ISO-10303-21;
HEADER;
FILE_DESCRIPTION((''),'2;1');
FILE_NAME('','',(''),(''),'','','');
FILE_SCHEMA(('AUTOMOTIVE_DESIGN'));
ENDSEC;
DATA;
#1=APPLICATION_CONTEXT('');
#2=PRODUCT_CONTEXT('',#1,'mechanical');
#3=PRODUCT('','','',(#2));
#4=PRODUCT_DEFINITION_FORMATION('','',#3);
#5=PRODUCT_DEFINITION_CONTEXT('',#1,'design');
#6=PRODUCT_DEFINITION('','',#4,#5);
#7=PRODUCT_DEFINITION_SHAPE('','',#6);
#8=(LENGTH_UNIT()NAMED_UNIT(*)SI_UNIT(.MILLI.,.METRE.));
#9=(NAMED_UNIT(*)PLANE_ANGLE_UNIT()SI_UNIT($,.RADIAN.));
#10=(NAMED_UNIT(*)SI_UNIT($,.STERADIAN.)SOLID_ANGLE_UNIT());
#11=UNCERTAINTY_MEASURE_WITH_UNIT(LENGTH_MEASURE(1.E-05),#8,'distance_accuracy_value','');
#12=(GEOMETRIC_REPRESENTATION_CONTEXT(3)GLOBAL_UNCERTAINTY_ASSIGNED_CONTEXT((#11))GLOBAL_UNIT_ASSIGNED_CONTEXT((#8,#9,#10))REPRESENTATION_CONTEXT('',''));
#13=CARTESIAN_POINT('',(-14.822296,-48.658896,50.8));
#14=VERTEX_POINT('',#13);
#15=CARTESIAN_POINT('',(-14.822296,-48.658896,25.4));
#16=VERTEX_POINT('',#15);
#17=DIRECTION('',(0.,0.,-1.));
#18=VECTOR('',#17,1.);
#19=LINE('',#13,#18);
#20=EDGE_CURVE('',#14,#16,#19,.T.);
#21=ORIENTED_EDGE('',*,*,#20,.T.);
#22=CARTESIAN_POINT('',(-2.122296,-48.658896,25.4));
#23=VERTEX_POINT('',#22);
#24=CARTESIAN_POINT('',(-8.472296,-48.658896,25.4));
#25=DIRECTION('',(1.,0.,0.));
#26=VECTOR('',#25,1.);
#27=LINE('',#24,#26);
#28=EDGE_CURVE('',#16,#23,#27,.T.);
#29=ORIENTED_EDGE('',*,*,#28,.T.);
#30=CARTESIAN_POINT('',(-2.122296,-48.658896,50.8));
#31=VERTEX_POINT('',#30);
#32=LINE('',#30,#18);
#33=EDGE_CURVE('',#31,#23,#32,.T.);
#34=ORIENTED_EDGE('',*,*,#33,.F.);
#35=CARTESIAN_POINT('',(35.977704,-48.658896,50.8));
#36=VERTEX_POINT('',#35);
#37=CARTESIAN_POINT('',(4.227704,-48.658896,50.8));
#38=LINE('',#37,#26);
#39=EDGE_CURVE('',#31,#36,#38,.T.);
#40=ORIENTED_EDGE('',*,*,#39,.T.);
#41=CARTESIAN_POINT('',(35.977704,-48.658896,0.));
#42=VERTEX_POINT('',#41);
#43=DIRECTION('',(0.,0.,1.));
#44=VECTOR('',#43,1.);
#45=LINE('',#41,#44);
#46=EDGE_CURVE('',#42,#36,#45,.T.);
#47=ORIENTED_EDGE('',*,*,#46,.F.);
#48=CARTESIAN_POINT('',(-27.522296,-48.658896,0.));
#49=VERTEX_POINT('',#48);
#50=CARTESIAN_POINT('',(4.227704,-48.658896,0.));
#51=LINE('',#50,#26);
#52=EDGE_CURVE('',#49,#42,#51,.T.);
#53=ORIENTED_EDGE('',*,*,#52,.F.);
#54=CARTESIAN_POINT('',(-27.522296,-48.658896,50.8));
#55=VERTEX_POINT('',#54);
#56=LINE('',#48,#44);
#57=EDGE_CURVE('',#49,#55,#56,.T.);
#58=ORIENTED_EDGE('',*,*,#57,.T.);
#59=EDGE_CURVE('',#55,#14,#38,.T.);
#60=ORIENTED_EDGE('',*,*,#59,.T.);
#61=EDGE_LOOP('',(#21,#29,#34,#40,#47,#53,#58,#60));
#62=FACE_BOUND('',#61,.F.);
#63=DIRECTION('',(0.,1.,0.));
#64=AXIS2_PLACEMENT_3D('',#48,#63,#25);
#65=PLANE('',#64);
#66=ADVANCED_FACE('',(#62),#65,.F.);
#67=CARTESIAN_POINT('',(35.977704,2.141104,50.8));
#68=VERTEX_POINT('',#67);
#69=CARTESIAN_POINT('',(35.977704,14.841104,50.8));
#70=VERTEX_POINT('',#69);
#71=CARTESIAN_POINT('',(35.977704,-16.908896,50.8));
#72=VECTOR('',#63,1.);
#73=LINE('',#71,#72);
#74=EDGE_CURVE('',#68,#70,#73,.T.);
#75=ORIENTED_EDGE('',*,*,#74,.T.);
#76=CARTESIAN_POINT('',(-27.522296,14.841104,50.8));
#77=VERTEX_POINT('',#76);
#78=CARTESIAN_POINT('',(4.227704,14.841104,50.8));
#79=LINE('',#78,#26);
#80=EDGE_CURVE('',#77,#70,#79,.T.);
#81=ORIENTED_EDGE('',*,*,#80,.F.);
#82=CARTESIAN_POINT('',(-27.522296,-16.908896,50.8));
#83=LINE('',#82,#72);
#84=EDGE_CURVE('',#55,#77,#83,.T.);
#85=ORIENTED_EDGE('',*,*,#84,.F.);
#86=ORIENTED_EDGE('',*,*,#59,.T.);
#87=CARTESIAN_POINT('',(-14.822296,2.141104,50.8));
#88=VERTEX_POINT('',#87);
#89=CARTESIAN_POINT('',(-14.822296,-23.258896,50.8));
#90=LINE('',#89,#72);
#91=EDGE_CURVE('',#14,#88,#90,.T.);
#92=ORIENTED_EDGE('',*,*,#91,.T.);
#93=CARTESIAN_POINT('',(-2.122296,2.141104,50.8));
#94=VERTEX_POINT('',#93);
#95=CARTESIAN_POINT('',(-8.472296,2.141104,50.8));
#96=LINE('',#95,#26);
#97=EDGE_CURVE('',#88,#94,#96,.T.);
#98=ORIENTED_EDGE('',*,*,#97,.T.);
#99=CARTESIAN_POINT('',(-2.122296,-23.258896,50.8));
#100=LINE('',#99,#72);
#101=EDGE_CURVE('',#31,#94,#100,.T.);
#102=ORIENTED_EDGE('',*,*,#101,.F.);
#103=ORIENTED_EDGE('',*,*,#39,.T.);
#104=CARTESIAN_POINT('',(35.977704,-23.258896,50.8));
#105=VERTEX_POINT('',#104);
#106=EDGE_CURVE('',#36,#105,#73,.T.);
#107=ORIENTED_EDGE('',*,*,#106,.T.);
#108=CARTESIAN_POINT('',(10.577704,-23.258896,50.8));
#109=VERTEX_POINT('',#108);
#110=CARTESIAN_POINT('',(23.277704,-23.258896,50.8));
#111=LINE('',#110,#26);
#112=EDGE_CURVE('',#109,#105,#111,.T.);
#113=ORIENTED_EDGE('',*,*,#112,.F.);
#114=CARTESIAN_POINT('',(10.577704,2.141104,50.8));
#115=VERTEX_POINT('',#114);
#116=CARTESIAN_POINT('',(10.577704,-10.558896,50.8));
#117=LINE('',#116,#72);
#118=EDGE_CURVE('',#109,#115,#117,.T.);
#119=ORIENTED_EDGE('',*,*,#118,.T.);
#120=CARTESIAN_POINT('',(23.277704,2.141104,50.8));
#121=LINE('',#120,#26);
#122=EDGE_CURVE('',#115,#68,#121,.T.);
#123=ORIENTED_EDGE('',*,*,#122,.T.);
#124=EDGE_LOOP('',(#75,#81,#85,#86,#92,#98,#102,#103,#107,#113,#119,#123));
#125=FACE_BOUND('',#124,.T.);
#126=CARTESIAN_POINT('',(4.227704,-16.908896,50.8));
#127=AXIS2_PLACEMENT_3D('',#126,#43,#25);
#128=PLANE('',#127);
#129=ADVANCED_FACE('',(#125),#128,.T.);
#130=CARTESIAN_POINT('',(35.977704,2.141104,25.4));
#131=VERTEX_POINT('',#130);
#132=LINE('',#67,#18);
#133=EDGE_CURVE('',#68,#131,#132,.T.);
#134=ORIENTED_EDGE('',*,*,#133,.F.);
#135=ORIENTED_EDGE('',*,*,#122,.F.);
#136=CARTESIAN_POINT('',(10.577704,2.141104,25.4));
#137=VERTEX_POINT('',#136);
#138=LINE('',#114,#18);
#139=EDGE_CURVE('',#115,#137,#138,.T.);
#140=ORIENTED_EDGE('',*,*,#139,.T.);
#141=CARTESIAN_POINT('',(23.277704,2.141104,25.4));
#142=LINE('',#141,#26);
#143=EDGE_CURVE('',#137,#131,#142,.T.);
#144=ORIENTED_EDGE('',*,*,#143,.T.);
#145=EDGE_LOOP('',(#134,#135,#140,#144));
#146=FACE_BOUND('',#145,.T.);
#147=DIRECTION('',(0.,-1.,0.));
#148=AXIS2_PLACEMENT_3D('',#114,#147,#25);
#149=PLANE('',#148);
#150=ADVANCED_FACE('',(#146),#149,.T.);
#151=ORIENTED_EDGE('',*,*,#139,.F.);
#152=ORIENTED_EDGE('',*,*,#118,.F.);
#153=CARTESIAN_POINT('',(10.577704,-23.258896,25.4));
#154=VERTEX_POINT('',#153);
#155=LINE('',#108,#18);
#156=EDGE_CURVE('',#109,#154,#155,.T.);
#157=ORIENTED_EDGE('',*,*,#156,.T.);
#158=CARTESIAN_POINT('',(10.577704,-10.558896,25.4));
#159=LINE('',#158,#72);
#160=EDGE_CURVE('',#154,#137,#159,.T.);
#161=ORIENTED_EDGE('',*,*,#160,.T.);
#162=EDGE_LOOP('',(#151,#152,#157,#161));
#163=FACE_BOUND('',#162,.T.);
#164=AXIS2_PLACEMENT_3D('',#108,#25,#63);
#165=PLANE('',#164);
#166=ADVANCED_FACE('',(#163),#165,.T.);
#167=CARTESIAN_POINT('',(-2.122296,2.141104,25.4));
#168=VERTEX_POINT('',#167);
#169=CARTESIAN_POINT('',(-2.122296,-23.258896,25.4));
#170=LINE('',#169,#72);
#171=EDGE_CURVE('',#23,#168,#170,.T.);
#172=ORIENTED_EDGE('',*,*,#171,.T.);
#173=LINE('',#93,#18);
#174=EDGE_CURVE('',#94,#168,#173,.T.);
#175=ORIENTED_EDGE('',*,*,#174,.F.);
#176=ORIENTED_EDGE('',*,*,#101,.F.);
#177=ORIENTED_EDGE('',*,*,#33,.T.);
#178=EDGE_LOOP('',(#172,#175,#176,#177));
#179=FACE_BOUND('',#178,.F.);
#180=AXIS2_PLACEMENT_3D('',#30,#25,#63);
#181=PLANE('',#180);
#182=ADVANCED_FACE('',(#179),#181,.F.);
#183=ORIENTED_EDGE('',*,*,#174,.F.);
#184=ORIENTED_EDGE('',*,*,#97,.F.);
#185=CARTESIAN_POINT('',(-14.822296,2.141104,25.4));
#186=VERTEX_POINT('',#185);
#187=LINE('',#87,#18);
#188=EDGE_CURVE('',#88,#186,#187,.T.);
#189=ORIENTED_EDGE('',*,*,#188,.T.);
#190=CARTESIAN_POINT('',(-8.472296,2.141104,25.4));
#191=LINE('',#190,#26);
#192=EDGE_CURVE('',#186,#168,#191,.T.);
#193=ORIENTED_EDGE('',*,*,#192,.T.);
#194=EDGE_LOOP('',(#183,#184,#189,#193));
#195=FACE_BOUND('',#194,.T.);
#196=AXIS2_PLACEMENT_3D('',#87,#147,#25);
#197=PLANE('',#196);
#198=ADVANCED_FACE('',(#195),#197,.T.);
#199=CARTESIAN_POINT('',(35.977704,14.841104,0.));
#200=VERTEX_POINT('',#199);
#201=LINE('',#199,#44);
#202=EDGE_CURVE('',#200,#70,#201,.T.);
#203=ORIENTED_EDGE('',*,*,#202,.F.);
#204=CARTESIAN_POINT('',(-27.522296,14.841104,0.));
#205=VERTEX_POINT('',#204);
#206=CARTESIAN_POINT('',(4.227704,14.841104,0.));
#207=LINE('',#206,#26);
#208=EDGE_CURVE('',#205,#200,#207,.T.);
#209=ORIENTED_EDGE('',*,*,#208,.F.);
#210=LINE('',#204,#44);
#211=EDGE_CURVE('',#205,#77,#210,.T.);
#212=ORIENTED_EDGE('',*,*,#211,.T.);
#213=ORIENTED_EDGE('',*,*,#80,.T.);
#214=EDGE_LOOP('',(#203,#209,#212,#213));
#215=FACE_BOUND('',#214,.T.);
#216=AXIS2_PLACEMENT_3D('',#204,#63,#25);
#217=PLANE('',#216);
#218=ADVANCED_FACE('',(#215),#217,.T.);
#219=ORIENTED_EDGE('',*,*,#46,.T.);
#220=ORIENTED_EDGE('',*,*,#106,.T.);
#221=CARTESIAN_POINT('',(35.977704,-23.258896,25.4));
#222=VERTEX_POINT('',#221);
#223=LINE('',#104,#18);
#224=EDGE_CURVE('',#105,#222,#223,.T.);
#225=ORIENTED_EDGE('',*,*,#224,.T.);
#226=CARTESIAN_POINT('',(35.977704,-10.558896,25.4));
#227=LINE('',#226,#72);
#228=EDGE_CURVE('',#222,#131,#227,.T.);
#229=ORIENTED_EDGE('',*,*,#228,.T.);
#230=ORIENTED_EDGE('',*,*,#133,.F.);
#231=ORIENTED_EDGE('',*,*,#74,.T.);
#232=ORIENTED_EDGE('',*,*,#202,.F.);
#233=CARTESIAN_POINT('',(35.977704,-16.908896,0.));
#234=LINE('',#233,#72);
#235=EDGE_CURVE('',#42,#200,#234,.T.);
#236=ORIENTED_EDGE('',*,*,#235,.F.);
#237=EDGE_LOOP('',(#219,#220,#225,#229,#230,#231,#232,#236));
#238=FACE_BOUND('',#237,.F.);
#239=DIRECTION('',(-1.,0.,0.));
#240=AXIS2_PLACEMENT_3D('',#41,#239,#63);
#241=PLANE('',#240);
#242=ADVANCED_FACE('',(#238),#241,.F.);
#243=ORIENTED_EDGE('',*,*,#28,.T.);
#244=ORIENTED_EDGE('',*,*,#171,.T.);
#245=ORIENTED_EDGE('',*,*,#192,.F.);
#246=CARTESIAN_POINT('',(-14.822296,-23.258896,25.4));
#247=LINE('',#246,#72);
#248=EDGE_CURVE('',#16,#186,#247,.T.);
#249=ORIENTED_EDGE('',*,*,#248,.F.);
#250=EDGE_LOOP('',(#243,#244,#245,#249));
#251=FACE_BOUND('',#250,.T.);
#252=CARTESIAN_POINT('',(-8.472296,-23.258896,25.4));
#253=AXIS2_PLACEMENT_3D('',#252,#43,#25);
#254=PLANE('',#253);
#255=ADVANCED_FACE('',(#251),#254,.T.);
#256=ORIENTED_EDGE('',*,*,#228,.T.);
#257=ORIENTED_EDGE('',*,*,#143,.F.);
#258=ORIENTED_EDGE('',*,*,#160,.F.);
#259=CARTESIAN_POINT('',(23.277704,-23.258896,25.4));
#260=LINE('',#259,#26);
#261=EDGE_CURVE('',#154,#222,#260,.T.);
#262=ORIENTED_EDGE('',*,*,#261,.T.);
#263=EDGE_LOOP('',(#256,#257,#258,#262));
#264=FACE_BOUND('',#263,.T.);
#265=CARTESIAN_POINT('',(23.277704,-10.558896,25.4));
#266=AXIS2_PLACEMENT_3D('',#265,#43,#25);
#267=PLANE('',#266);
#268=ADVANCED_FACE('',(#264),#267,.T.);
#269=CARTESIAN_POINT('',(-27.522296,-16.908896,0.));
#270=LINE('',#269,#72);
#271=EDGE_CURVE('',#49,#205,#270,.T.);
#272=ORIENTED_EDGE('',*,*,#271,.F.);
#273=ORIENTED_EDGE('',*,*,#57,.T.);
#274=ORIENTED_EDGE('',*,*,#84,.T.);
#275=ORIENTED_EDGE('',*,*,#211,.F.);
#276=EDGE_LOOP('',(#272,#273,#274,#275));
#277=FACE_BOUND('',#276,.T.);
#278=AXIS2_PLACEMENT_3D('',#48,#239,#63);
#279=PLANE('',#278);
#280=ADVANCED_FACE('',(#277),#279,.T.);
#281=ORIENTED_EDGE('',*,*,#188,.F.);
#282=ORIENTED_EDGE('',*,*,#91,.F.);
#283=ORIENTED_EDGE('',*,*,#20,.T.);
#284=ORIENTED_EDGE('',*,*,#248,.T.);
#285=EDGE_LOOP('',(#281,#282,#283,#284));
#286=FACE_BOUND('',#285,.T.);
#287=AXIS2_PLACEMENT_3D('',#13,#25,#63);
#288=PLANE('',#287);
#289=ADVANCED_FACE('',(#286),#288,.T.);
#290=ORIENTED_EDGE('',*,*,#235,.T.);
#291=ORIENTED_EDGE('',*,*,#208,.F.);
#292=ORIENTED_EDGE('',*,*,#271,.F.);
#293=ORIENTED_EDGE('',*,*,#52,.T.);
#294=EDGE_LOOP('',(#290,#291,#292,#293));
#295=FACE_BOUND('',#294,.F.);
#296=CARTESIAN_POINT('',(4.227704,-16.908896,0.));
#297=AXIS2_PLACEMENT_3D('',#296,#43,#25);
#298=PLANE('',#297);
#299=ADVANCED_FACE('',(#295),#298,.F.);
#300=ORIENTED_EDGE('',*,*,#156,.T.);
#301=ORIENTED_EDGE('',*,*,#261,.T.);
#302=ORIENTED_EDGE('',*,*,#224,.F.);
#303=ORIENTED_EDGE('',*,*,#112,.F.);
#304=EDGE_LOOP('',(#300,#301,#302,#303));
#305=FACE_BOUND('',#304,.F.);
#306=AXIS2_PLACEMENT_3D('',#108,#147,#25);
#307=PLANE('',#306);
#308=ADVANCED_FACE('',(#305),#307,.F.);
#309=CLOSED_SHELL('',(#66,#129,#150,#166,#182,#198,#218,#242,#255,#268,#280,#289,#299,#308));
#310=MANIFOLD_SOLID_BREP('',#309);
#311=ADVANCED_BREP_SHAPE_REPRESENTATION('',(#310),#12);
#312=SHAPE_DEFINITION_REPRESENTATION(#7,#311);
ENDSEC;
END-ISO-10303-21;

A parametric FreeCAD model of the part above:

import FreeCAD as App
import Part
import Sketcher

V = App.Vector
Q = App.Units.Quantity

doc = App.newDocument("Part")
body = doc.addObject("PartDesign::Body", "Body")

# Sketch on XY plane
sketch1 = body.newObject("Sketcher::SketchObject", "Sketch")
sketch1.AttachmentSupport = (doc.getObject("XY_Plane"), [""])
sketch1.MapMode = "FlatFace"
sketch1.addGeometry([
    Part.LineSegment(V(-27.522296, 14.841104, 0), V(-27.522296, -48.658896, 0)),
    Part.LineSegment(V(-27.522296, -48.658896, 0), V(35.977704, -48.658896, 0)),
    Part.LineSegment(V(35.977704, -48.658896, 0), V(35.977704, 14.841104, 0)),
    Part.LineSegment(V(35.977704, 14.841104, 0), V(-27.522296, 14.841104, 0)),
], False)
sketch1.addConstraint([
    Sketcher.Constraint("Coincident", 0, 2, 1, 1),
    Sketcher.Constraint("Coincident", 1, 2, 2, 1),
    Sketcher.Constraint("Coincident", 2, 2, 3, 1),
    Sketcher.Constraint("Coincident", 3, 2, 0, 1),
    Sketcher.Constraint("Vertical", 0),
    Sketcher.Constraint("Horizontal", 1),
    Sketcher.Constraint("Vertical", 2),
    Sketcher.Constraint("Horizontal", 3),
    Sketcher.Constraint("Equal", 3, 0),
    Sketcher.Constraint("DistanceX", 1, 1, 1, 2, Q("2.5 in")),
    Sketcher.Constraint("DistanceX", 0, 2, -1, 1, Q("27.522296 mm")),
    Sketcher.Constraint("DistanceY", 0, 2, -1, 1, Q("48.658896 mm")),
])
pad1 = body.newObject("PartDesign::Pad", "Pad")
pad1.Profile = sketch1
pad1.Length = Q("2 in")

# Sketch on XY plane
sketch2 = body.newObject("Sketcher::SketchObject", "Sketch001")
sketch2.AttachmentSupport = (doc.getObject("XY_Plane"), [""])
sketch2.MapMode = "FlatFace"
sketch2.AttachmentOffset = App.Placement(V(0, 0, 2 * 25.4), App.Rotation())
sketch2.addGeometry([
    Part.LineSegment(V(-14.822296, 2.141104, 0), V(-14.822296, -48.658896, 0)),  # 0
    Part.LineSegment(V(-14.822296, -48.658896, 0), V(-2.122296, -48.658896, 0)),  # 1
    Part.LineSegment(V(-2.122296, -48.658896, 0), V(-2.122296, 2.141104, 0)),  # 2
    Part.LineSegment(V(-2.122296, 2.141104, 0), V(-14.822296, 2.141104, 0)),  # 3
    Part.LineSegment(V(10.577704, 2.141104, 0), V(10.577704, -23.258896, 0)),  # 4
    Part.LineSegment(V(10.577704, -23.258896, 0), V(35.977704, -23.258896, 0)),  # 5
    Part.LineSegment(V(35.977704, -23.258896, 0), V(35.977704, 2.141104, 0)),  # 6
    Part.LineSegment(V(35.977704, 2.141104, 0), V(10.577704, 2.141104, 0)),  # 7
], False)
sketch2.addConstraint([
    Sketcher.Constraint("Coincident", 0, 2, 1, 1),
    Sketcher.Constraint("Coincident", 1, 2, 2, 1),
    Sketcher.Constraint("Coincident", 2, 2, 3, 1),
    Sketcher.Constraint("Coincident", 3, 2, 0, 1),
    Sketcher.Constraint("Coincident", 4, 2, 5, 1),
    Sketcher.Constraint("Coincident", 5, 2, 6, 1),
    Sketcher.Constraint("Coincident", 6, 2, 7, 1),
    Sketcher.Constraint("Coincident", 7, 2, 4, 1),
    Sketcher.Constraint("Vertical", 0),
    Sketcher.Constraint("Horizontal", 1),
    Sketcher.Constraint("Vertical", 2),
    Sketcher.Constraint("Horizontal", 3),
    Sketcher.Constraint("Vertical", 4),
    Sketcher.Constraint("Horizontal", 5),
    Sketcher.Constraint("Vertical", 6),
    Sketcher.Constraint("Horizontal", 7),
    Sketcher.Constraint("Horizontal", 3, 2, 6, 2),
    Sketcher.Constraint("Equal", 7, 4),
    Sketcher.Constraint("DistanceX", 5, 1, 5, 2, Q("1 in")),
    Sketcher.Constraint("DistanceY", 0, 2, 0, 1, Q("2 in")),
    Sketcher.Constraint("DistanceX", 1, 1, 1, 2, Q("0.5 in")),
    Sketcher.Constraint("DistanceX", 0, 2, 4, 2, Q("1 in")),
    Sketcher.Constraint("DistanceX", 0, 2, -1, 1, Q("14.822296 mm")),
    Sketcher.Constraint("DistanceY", 0, 2, -1, 1, Q("48.658896 mm")),
])
pocket1 = body.newObject("PartDesign::Pocket", "Pocket")
pocket1.Profile = sketch2
pocket1.Length = Q("1 in")

doc.recompute()
